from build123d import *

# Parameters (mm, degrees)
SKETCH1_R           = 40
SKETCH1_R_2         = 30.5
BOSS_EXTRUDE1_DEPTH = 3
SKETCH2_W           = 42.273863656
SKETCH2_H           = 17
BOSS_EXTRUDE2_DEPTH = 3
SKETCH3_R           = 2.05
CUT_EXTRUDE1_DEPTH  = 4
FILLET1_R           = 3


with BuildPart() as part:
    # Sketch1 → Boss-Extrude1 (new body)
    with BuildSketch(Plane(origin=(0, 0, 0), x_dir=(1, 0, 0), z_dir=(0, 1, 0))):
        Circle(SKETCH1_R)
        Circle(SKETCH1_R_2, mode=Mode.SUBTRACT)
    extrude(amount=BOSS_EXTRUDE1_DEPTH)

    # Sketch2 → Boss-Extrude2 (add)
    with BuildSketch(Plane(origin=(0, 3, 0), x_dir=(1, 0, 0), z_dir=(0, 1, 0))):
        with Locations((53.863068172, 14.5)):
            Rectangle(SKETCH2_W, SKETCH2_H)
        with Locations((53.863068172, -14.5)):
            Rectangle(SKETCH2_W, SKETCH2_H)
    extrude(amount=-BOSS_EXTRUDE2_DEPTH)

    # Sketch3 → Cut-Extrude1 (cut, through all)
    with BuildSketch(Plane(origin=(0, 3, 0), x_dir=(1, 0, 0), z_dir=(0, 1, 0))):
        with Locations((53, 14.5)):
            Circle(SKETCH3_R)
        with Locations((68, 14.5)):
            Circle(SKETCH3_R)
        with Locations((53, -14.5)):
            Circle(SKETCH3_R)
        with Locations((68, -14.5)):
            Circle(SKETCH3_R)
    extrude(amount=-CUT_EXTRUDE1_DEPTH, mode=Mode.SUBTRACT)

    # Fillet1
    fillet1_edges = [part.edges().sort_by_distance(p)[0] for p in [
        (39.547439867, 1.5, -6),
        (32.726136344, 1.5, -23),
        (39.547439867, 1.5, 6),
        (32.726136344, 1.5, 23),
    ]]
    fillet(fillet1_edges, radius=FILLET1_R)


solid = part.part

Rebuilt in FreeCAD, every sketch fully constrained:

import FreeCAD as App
import Part
import Sketcher

V = App.Vector
Q = App.Units.Quantity


def edges_at(feature, points):
    """Names of the edges that pass closest to the given points."""
    edges = feature.Shape.Edges
    near = lambda p: min(range(len(edges)), key=lambda i: edges[i].distToShape(Part.Vertex(*p))[0])
    return sorted({f"Edge{near(p) + 1}" for p in points})


def add_polygon(sketch, points):
    """Adds a closed chain of lines whose ends are joined by coincident constraints."""
    first, n = sketch.GeometryCount, len(points)
    for a, b in zip(points, points[1:] + points[:1]):
        sketch.addGeometry(Part.LineSegment(App.Vector(*a, 0), App.Vector(*b, 0)), False)
    for i in range(n):
        sketch.addConstraint(Sketcher.Constraint("Coincident", first + i, 2, first + (i + 1) % n, 1))

doc = App.newDocument("Part")
params = doc.addObject("Spreadsheet::Sheet", "Params")
for row, (alias, value) in enumerate([
    ("sketch1_diameter", "80 mm"),
    ("sketch1_diameter2", "61 mm"),
    ("pad1_length", "3 mm"),
    ("sketch2_height", "17 mm"),
    ("pad2_length", "3 mm"),
    ("sketch3_diameter", "4.1 mm"),
    ("fillet_radius", "3 mm"),
], start=1):
    params.set(f"A{row}", alias)
    params.set(f"B{row}", "=" + value)
    params.setAlias(f"B{row}", alias)

body = doc.addObject("PartDesign::Body", "Body")

sketch1 = body.newObject("Sketcher::SketchObject", "Sketch")
sketch1.AttachmentSupport = (doc.getObject("XZ_Plane"), [""])
sketch1.MapMode = "FlatFace"
sketch1.addGeometry(Part.Circle(V(0, 0, 0), V(0, 0, 1), 40), False)
sketch1.addGeometry(Part.Circle(V(0, 0, 0), V(0, 0, 1), 30), False)
sketch1.addConstraint(Sketcher.Constraint("Coincident", 0, 3, -1, 1))
sketch1.addConstraint(Sketcher.Constraint("Coincident", 1, 3, -1, 1))
sketch1.addConstraint(Sketcher.Constraint("Diameter", 0, Q("80 mm")))
sketch1.addConstraint(Sketcher.Constraint("Diameter", 1, Q("61 mm")))
sketch1.setExpression("Constraints[2]", "Params.sketch1_diameter")
sketch1.setExpression("Constraints[3]", "Params.sketch1_diameter2")
pad1 = body.newObject("PartDesign::Pad", "Pad")
pad1.Profile = sketch1
pad1.setExpression("Length", "Params.pad1_length")
pad1.Reversed = True

sketch2 = body.newObject("Sketcher::SketchObject", "Sketch001")
sketch2.AttachmentSupport = (doc.getObject("XZ_Plane"), [""])
sketch2.MapMode = "FlatFace"
sketch2.AttachmentOffset = App.Placement(V(0, 0, -3), App.Rotation())
add_polygon(sketch2, [(33, -23), (33, -6), (75, -6), (75, -23)])
add_polygon(sketch2, [(33, 6), (33, 23), (75, 23), (75, 6)])
sketch2.addConstraint(Sketcher.Constraint("Vertical", 0))
sketch2.addConstraint(Sketcher.Constraint("Horizontal", 1))
sketch2.addConstraint(Sketcher.Constraint("Vertical", 2))
sketch2.addConstraint(Sketcher.Constraint("Horizontal", 3))
sketch2.addConstraint(Sketcher.Constraint("Vertical", 4))
sketch2.addConstraint(Sketcher.Constraint("Horizontal", 5))
sketch2.addConstraint(Sketcher.Constraint("Vertical", 6))
sketch2.addConstraint(Sketcher.Constraint("Horizontal", 7))
sketch2.addConstraint(Sketcher.Constraint("Symmetric", 3, 2, 4, 2, -1))
sketch2.addConstraint(Sketcher.Constraint("Symmetric", 1, 2, 6, 2, -1))
sketch2.addConstraint(Sketcher.Constraint("DistanceY", 0, 1, 0, 2, Q("17 mm")))
sketch2.addConstraint(Sketcher.Constraint("DistanceY", 0, 2, -1, 1, Q("6 mm")))
sketch2.addConstraint(Sketcher.Constraint("DistanceX", -1, 1, 1, 2, Q("75 mm")))
sketch2.addConstraint(Sketcher.Constraint("DistanceX", 1, 1, 1, 2, Q("42.273864 mm")))
sketch2.setExpression("Constraints[18]", "Params.sketch2_height")
pad2 = body.newObject("PartDesign::Pad", "Pad001")
pad2.Profile = sketch2
pad2.setExpression("Length", "Params.pad2_length")

sketch3 = body.newObject("Sketcher::SketchObject", "Sketch002")
sketch3.AttachmentSupport = (doc.getObject("XZ_Plane"), [""])
sketch3.MapMode = "FlatFace"
sketch3.AttachmentOffset = App.Placement(V(0, 0, -3), App.Rotation())
sketch3.addGeometry(Part.Circle(V(53, -14.5, 0), V(0, 0, 1), 2), False)
sketch3.addGeometry(Part.Circle(V(68, -14.5, 0), V(0, 0, 1), 2), False)
sketch3.addGeometry(Part.Circle(V(53, 14.5, 0), V(0, 0, 1), 2), False)
sketch3.addGeometry(Part.Circle(V(68, 14.5, 0), V(0, 0, 1), 2), False)
sketch3.addConstraint(Sketcher.Constraint("Equal", 0, 1))
sketch3.addConstraint(Sketcher.Constraint("Equal", 1, 2))
sketch3.addConstraint(Sketcher.Constraint("Equal", 2, 3))
sketch3.addConstraint(Sketcher.Constraint("Symmetric", 0, 3, 2, 3, -1))
sketch3.addConstraint(Sketcher.Constraint("Symmetric", 1, 3, 3, 3, -1))
sketch3.addConstraint(Sketcher.Constraint("Horizontal", 0, 3, 1, 3))
sketch3.addConstraint(Sketcher.Constraint("Diameter", 0, Q("4.1 mm")))
sketch3.addConstraint(Sketcher.Constraint("DistanceX", -1, 1, 0, 3, Q("53 mm")))
sketch3.addConstraint(Sketcher.Constraint("DistanceX", -1, 1, 1, 3, Q("68 mm")))
sketch3.addConstraint(Sketcher.Constraint("DistanceY", 0, 3, 2, 3, Q("29 mm")))
sketch3.setExpression("Constraints[6]", "Params.sketch3_diameter")
pocket1 = body.newObject("PartDesign::Pocket", "Pocket")
pocket1.Profile = sketch3
pocket1.Type = "ThroughAll"
pocket1.Reversed = True
doc.recompute()

fillet = body.newObject("PartDesign::Fillet", "Fillet")
fillet.Base = (pocket1, edges_at(pocket1, [
    (39.547, 1.5, -6),
    (32.726, 1.5, -23),
    (39.547, 1.5, 6),
    (32.726, 1.5, 23),
]))
fillet.setExpression("Radius", "Params.fillet_radius")

doc.recompute()
